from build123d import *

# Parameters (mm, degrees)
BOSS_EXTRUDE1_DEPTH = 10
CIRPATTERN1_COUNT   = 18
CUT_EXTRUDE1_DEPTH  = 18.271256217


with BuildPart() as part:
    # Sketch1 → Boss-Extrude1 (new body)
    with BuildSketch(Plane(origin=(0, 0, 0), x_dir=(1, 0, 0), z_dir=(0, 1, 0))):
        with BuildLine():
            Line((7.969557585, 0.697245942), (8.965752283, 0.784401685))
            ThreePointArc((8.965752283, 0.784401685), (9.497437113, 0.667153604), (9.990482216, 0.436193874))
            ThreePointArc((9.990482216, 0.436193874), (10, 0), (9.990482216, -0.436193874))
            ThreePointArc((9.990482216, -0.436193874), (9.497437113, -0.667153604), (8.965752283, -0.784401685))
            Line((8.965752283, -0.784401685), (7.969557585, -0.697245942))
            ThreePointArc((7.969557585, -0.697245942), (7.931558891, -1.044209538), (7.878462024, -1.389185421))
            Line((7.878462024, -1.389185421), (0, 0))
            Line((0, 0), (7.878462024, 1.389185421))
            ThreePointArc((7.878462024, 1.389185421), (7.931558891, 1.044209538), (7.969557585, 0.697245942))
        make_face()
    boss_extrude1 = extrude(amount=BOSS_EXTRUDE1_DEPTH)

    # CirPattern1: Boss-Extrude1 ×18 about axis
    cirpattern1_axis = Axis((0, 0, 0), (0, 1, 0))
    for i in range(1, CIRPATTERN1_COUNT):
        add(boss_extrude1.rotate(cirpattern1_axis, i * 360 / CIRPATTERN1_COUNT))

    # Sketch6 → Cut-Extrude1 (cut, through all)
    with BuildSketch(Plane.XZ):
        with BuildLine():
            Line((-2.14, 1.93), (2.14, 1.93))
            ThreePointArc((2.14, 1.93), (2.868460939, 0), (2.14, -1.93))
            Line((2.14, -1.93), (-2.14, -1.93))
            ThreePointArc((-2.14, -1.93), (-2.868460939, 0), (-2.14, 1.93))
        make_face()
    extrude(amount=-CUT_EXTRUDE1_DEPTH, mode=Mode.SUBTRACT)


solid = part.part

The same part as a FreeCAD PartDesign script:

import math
import FreeCAD as App
import Part
import Sketcher
Q = App.Units.Quantity

doc = App.newDocument("Part")
params = doc.addObject("Spreadsheet::Sheet", "Params")
for row, (alias, value) in enumerate([
    ("sketch1_radius", "8 mm"),
    ("sketch1_radius2", "10 mm"),
    ("sketch1_length", "1 mm"),
    ("pad1_length", "10 mm"),
    ("sketch2_width", "4.28 mm"),
], start=1):
    params.set(f"A{row}", alias)
    params.set(f"B{row}", "=" + value)
    params.setAlias(f"B{row}", alias)

body = doc.addObject("PartDesign::Body", "Body")

# Sketch on XZ plane
sketch1 = body.newObject("Sketcher::SketchObject", "Sketch")
sketch1.AttachmentSupport = (doc.getObject("XZ_Plane"), [""])
sketch1.MapMode = "FlatFace"
sketch1.addGeometry([
    Part.LineSegment(App.Vector(9, -0.8, 0), App.Vector(8, -0.7, 0)),  # 0
    Part.ArcOfCircle(Part.Circle(App.Vector(0, 0, 0), App.Vector(0, 0, 1), 8), math.radians(-10), math.radians(-5)),  # 1
    Part.LineSegment(App.Vector(7.9, -1.4, 0), App.Vector(0, 0, 0)),  # 2
    Part.LineSegment(App.Vector(0, 0, 0), App.Vector(7.9, 1.4, 0)),  # 3
    Part.ArcOfCircle(Part.Circle(App.Vector(0, 0, 0), App.Vector(0, 0, 1), 8), math.radians(5), math.radians(10)),  # 4
    Part.LineSegment(App.Vector(8, 0.7, 0), App.Vector(9, 0.8, 0)),  # 5
    Part.ArcOfCircle(Part.Circle(App.Vector(8.7, -1.7, 0), App.Vector(0, 0, 1), 2.5), math.radians(59), math.radians(84)),  # 6
    Part.ArcOfCircle(Part.Circle(App.Vector(0, 0, 0), App.Vector(0, 0, 1), 10), math.radians(-2.5), math.radians(2.5)),  # 7
    Part.ArcOfCircle(Part.Circle(App.Vector(8.7, 1.7, 0), App.Vector(0, 0, 1), 2.5), math.radians(-84), math.radians(-59)),  # 8
], False)
sketch1.addConstraint([
    Sketcher.Constraint("Coincident", 0, 2, 1, 2),
    Sketcher.Constraint("Coincident", 1, 1, 2, 1),
    Sketcher.Constraint("Coincident", 2, 2, 3, 1),
    Sketcher.Constraint("Coincident", 3, 2, 4, 2),
    Sketcher.Constraint("Coincident", 4, 1, 5, 1),
    Sketcher.Constraint("Coincident", 5, 2, 6, 2),
    Sketcher.Constraint("Coincident", 6, 1, 7, 2),
    Sketcher.Constraint("Coincident", 7, 1, 8, 2),
    Sketcher.Constraint("Coincident", 8, 1, 0, 1),
    Sketcher.Constraint("Coincident", 1, 3, -1, 1),
    Sketcher.Constraint("Coincident", 4, 3, -1, 1),
    Sketcher.Constraint("Coincident", 7, 3, -1, 1),
    Sketcher.Constraint("Coincident", 2, 2, -1, 1),
    Sketcher.Constraint("Equal", 1, 4),
    Sketcher.Constraint("Equal", 6, 8),
    Sketcher.Constraint("Symmetric", 6, 3, 8, 3, -1),
    Sketcher.Constraint("Vertical", 1, 1, 3, 2),
    Sketcher.Constraint("Vertical", 0, 2, 4, 1),
    Sketcher.Constraint("Vertical", 5, 2, 8, 1),
    Sketcher.Constraint("Radius", 1, 8.0),
    Sketcher.Constraint("Radius", 7, 10.0),
    Sketcher.Constraint("Angle", 0, Q("175 deg")),
    Sketcher.Constraint("Angle", 2, Q("170 deg")),
    Sketcher.Constraint("Distance", 0, 1.0),
    Sketcher.Constraint("Radius", 6, 2.468297),
    Sketcher.Constraint("DistanceY", 6, 3, -1, 1, 1.669902),
    Sketcher.Constraint("DistanceY", -1, 1, 5, 2, 0.784402),
])
sketch1.setExpression("Constraints[19]", "Params.sketch1_radius")
sketch1.setExpression("Constraints[20]", "Params.sketch1_radius2")
sketch1.setExpression("Constraints[23]", "Params.sketch1_length")
pad1 = body.newObject("PartDesign::Pad", "Pad")
pad1.Profile = sketch1
pad1.setExpression("Length", "Params.pad1_length")
pad1.Reversed = True
doc.recompute()

polarpattern = body.newObject("PartDesign::PolarPattern", "PolarPattern")
polarpattern.Originals = [pad1]
polarpattern.Axis = (doc.getObject("Y_Axis"), [""])
polarpattern.Angle = 360
polarpattern.Occurrences = 18
body.Tip = polarpattern

# Sketch on XZ plane
sketch2 = body.newObject("Sketcher::SketchObject", "Sketch001")
sketch2.AttachmentSupport = (doc.getObject("XZ_Plane"), [""])
sketch2.MapMode = "FlatFace"
sketch2.addGeometry([
    Part.LineSegment(App.Vector(2.1, 1.9, 0), App.Vector(-2.1, 1.9, 0)),
    Part.ArcOfCircle(Part.Circle(App.Vector(0.1, 0, 0), App.Vector(0, 0, 1), 2.9), math.radians(139), math.radians(221)),
    Part.LineSegment(App.Vector(-2.1, -1.9, 0), App.Vector(2.1, -1.9, 0)),
    Part.ArcOfCircle(Part.Circle(App.Vector(-0.1, 0, 0), App.Vector(0, 0, 1), 2.9), math.radians(-41), math.radians(41)),
], False)
sketch2.addConstraint([
    Sketcher.Constraint("Coincident", 0, 2, 1, 1),
    Sketcher.Constraint("Coincident", 1, 2, 2, 1),
    Sketcher.Constraint("Coincident", 2, 2, 3, 1),
    Sketcher.Constraint("Coincident", 3, 2, 0, 1),
    Sketcher.Constraint("Horizontal", 0),
    Sketcher.Constraint("Horizontal", 2),
    Sketcher.Constraint("Equal", 1, 3),
    Sketcher.Constraint("Symmetric", 1, 3, 3, 3, -1, 1),
    Sketcher.Constraint("Symmetric", 0, 2, 1, 2, -1),
    Sketcher.Constraint("DistanceX", 0, 2, 0, 1, 4.28),
    Sketcher.Constraint("DistanceY", -1, 1, 0, 2, 1.93),
    Sketcher.Constraint("Radius", 1, 2.920922),
])
sketch2.setExpression("Constraints[9]", "Params.sketch2_width")
pocket1 = body.newObject("PartDesign::Pocket", "Pocket")
pocket1.Profile = sketch2
pocket1.Type = "ThroughAll"

doc.recompute()
